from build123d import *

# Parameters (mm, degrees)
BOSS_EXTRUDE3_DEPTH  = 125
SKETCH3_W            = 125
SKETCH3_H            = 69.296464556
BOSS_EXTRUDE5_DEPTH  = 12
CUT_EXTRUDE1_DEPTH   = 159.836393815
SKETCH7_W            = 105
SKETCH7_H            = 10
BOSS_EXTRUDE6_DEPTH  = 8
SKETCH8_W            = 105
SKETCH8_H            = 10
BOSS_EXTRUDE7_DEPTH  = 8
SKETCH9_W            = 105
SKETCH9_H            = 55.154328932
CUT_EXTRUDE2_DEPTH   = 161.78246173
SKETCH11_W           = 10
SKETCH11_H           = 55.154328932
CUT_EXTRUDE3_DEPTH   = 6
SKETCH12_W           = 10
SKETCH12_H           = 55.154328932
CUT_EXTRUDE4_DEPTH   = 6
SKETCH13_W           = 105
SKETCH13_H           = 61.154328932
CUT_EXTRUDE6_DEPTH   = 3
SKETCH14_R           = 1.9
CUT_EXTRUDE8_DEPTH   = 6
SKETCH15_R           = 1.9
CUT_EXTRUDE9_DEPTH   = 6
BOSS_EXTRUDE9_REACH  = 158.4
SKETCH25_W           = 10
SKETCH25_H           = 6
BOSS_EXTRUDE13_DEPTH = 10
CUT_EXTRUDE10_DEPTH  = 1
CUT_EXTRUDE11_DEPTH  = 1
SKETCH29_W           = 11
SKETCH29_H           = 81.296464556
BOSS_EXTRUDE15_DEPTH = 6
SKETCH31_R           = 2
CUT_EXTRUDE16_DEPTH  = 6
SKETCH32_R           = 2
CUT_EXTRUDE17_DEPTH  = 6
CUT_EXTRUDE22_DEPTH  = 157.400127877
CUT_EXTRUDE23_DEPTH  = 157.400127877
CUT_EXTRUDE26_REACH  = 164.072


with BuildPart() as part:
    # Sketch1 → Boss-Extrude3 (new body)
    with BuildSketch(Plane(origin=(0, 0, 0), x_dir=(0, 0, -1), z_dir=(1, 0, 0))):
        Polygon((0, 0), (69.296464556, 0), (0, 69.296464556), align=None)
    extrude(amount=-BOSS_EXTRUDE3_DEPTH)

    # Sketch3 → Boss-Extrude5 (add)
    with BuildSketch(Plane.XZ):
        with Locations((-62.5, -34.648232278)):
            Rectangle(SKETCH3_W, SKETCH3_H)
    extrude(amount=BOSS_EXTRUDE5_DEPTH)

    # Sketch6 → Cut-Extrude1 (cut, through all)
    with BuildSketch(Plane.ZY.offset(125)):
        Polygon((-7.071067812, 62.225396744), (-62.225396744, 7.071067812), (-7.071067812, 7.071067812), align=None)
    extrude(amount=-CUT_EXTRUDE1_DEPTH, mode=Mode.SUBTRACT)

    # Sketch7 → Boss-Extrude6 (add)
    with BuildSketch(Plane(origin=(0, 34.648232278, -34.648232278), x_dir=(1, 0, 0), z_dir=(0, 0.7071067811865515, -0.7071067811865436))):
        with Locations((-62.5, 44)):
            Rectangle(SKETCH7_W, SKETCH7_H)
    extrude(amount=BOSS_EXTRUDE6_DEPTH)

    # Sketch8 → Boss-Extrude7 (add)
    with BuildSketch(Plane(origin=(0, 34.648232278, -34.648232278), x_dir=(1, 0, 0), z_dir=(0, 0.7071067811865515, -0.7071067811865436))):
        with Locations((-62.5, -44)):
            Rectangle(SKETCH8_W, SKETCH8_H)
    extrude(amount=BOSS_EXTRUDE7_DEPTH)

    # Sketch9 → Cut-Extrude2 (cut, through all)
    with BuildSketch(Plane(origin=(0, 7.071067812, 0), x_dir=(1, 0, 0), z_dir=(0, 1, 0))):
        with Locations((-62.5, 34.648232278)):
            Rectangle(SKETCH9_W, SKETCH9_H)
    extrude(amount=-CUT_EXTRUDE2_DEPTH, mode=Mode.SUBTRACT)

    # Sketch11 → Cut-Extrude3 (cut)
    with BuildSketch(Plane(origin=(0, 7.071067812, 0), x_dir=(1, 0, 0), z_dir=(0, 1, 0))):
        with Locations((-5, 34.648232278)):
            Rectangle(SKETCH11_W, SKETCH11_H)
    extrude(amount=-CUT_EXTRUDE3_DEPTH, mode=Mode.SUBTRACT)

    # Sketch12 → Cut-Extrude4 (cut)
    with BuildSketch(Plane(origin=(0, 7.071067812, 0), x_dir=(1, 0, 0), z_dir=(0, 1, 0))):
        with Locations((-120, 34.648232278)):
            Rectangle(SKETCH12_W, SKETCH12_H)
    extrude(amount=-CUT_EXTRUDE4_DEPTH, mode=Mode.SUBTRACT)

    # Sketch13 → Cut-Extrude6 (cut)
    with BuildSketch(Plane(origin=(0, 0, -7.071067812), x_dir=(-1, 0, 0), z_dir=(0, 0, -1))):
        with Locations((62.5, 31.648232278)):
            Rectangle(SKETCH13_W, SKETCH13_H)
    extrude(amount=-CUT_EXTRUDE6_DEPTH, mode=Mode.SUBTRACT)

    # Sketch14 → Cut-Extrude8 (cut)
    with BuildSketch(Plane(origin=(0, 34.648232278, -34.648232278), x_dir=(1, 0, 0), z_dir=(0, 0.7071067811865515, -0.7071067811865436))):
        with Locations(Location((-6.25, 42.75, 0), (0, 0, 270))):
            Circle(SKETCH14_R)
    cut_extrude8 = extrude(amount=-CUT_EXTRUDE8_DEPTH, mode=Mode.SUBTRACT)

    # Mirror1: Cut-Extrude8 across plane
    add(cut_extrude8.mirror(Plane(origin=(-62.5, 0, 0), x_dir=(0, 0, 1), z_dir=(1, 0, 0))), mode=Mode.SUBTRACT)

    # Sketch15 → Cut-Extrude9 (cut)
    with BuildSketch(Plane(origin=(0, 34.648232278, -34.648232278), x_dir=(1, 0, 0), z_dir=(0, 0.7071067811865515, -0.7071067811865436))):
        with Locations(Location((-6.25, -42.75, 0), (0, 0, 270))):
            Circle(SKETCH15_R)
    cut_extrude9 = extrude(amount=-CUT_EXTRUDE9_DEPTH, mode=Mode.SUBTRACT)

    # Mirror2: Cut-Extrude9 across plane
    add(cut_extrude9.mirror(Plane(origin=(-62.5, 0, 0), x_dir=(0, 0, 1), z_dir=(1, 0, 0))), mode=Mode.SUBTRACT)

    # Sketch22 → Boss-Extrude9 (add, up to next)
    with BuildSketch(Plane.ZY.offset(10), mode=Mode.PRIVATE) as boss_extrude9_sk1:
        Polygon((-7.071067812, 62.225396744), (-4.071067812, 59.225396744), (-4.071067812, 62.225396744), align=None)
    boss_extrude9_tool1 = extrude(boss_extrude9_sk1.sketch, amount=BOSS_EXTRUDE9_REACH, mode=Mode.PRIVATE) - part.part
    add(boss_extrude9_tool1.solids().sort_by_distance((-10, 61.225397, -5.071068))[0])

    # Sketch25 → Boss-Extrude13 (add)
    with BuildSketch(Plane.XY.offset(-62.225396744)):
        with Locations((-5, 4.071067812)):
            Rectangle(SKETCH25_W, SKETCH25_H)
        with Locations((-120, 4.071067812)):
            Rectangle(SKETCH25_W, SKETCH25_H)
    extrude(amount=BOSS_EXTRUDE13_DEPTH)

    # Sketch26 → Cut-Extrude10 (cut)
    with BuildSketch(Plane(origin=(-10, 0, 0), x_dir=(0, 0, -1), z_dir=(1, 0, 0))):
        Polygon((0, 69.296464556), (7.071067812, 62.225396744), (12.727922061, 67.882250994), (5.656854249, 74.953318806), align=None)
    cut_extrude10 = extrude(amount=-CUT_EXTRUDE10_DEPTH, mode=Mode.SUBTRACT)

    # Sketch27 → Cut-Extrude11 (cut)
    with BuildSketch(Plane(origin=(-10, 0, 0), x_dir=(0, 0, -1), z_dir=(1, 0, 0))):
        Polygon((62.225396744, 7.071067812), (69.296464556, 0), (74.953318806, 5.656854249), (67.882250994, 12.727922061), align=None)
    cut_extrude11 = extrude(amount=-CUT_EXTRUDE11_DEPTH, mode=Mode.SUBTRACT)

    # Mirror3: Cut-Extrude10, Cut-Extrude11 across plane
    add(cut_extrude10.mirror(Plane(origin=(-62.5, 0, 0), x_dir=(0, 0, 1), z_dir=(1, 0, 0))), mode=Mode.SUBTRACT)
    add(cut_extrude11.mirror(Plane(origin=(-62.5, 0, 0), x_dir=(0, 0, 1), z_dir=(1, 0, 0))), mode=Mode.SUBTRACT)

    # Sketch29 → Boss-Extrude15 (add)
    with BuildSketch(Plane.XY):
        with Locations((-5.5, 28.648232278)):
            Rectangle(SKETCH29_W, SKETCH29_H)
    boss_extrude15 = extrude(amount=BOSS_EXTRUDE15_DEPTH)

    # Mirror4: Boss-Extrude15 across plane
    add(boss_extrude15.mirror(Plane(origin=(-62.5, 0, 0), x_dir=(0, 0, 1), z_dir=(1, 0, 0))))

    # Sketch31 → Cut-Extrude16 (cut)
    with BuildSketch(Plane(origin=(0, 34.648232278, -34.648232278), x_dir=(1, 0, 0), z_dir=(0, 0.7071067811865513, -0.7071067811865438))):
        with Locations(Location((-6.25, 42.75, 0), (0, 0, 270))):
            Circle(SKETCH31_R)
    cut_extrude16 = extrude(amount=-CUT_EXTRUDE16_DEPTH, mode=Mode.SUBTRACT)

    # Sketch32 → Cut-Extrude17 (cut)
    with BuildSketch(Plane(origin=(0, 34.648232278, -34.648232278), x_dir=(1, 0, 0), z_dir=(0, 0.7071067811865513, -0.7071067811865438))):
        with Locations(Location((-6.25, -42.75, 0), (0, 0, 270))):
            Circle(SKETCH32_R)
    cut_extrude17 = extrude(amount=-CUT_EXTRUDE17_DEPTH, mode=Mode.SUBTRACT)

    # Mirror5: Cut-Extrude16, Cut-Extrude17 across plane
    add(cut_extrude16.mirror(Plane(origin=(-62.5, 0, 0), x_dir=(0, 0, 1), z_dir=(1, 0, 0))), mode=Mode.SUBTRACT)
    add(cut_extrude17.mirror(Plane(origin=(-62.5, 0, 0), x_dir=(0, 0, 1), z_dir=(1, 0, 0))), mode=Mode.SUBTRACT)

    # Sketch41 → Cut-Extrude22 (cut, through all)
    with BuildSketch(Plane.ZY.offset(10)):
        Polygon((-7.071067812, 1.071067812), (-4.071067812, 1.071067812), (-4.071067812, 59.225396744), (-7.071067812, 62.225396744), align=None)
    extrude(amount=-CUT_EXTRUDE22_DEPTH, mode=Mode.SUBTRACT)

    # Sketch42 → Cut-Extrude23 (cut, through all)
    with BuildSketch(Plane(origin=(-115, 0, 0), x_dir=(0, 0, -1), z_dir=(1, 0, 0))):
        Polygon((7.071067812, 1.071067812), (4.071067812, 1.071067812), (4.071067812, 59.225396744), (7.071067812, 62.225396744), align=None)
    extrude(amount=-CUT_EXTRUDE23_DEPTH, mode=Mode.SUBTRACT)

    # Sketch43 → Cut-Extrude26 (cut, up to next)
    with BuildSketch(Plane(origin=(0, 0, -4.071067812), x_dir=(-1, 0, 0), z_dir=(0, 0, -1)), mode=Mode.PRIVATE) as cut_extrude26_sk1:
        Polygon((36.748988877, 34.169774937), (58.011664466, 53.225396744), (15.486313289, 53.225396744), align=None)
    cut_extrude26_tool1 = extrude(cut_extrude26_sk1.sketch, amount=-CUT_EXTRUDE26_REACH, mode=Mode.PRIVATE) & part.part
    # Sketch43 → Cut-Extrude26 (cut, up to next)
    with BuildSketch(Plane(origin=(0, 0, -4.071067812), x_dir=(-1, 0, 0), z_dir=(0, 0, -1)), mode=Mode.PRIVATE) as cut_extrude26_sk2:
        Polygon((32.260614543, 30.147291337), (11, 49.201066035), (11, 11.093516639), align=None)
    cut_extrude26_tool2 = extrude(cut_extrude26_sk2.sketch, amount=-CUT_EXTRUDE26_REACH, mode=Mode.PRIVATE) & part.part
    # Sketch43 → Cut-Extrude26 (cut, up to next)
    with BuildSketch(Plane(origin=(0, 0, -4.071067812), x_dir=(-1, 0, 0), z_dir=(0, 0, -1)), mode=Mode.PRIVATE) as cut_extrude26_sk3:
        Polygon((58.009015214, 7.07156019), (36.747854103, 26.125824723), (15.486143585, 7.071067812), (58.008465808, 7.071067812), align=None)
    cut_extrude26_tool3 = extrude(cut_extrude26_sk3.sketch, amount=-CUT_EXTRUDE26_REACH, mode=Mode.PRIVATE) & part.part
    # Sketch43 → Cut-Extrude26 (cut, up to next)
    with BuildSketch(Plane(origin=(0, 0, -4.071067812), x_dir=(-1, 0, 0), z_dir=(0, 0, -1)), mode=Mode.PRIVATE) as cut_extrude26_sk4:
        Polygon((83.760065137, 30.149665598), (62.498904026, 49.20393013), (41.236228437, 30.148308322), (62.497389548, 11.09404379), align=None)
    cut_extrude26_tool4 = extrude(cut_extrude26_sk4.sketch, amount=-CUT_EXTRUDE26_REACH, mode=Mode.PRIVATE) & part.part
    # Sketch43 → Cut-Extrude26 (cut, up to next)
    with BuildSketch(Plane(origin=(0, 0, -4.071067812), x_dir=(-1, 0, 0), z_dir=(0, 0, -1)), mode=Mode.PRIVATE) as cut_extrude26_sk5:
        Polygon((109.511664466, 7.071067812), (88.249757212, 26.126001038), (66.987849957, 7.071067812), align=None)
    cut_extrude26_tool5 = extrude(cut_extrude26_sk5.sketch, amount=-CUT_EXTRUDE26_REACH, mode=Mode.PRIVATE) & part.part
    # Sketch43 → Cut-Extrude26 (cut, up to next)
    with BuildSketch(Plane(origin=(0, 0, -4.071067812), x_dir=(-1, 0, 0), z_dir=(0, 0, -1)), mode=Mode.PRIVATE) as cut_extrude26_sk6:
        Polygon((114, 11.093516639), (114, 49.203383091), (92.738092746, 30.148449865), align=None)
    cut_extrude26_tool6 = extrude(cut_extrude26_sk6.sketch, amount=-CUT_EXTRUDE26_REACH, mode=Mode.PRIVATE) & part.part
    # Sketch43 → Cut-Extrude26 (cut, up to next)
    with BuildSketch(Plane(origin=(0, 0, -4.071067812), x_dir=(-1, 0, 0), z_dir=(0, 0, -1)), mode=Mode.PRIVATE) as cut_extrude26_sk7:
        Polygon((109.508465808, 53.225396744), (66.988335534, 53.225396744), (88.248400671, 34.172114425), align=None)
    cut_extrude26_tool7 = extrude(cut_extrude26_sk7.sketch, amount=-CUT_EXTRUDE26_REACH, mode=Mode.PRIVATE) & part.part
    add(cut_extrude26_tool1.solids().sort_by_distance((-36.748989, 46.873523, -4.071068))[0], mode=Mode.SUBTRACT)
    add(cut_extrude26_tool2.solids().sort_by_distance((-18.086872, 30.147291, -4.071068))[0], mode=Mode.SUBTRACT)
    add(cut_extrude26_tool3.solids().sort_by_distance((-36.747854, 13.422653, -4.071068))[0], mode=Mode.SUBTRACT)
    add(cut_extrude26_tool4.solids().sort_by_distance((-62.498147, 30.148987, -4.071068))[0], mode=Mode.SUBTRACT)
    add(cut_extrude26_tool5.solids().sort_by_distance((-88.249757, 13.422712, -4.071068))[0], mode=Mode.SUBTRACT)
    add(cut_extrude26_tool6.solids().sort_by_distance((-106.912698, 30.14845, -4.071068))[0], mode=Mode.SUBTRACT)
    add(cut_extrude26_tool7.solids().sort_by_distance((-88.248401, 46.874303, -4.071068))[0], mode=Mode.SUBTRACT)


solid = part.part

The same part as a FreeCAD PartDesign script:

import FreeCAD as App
import Part
import Sketcher
Q = App.Units.Quantity


def add_polygon(sketch, points):
    """Adds a closed chain of lines whose ends are joined by coincident constraints."""
    first, n = sketch.GeometryCount, len(points)
    for a, b in zip(points, points[1:] + points[:1]):
        sketch.addGeometry(Part.LineSegment(App.Vector(*a, 0), App.Vector(*b, 0)), False)
    for i in range(n):
        sketch.addConstraint(Sketcher.Constraint("Coincident", first + i, 2, first + (i + 1) % n, 1))

doc = App.newDocument("Part")
body = doc.addObject("PartDesign::Body", "Body")

# Sketch on YZ plane
sketch1 = body.newObject("Sketcher::SketchObject", "Sketch")
sketch1.AttachmentSupport = (doc.getObject("YZ_Plane"), [""])
sketch1.MapMode = "FlatFace"
add_polygon(sketch1, [(0, 0), (0, -69.296465), (69.296465, 0)])  # lines 0-2
sketch1.addConstraint([
    Sketcher.Constraint("Vertical", 0),
    Sketcher.Constraint("Horizontal", 2),
    Sketcher.Constraint("Coincident", 2, 2, -1, 1),
    Sketcher.Constraint("Equal", 2, 0),
    Sketcher.Constraint("Distance", 1, Q("98 mm")),
])
pad1 = body.newObject("PartDesign::Pad", "Pad")
pad1.Profile = sketch1
pad1.Length = 125
pad1.Reversed = True

# Sketch on XZ plane
sketch2 = body.newObject("Sketcher::SketchObject", "Sketch001")
sketch2.AttachmentSupport = (doc.getObject("XZ_Plane"), [""])
sketch2.MapMode = "FlatFace"
add_polygon(sketch2, [(-125, 0), (-125, -69.296465), (0, -69.296465), (0, 0)])  # lines 0-3
sketch2.addConstraint([
    Sketcher.Constraint("Vertical", 0),
    Sketcher.Constraint("Horizontal", 1),
    Sketcher.Constraint("Vertical", 2),
    Sketcher.Constraint("Horizontal", 3),
    Sketcher.Constraint("Coincident", 2, 2, -1, 1),
    Sketcher.Constraint("DistanceX", 1, 1, 1, 2, Q("125 mm")),
    Sketcher.Constraint("DistanceY", 0, 2, 0, 1, Q("69.296465 mm")),
])
pad2 = body.newObject("PartDesign::Pad", "Pad001")
pad2.Profile = sketch2
pad2.Length = 12

# Sketch on YZ plane
sketch3 = body.newObject("Sketcher::SketchObject", "Sketch002")
sketch3.AttachmentSupport = (doc.getObject("YZ_Plane"), [""])
sketch3.MapMode = "FlatFace"
sketch3.AttachmentOffset = App.Placement(App.Vector(0, 0, -125), App.Rotation())
add_polygon(sketch3, [(62.225397, -7.071068), (7.071068, -62.225397), (7.071068, -7.071068)])  # lines 0-2
sketch3.addConstraint([
    Sketcher.Constraint("Vertical", 1),
    Sketcher.Constraint("Horizontal", 2),
    Sketcher.Constraint("Equal", 2, 1),
    Sketcher.Constraint("Distance", 0, Q("78 mm")),
    Sketcher.Constraint("DistanceX", -1, 1, 0, 2, Q("7.071068 mm")),
    Sketcher.Constraint("DistanceY", 0, 2, -1, 1, Q("62.225397 mm")),
])
pocket1 = body.newObject("PartDesign::Pocket", "Pocket")
pocket1.Profile = sketch3
pocket1.Type = "ThroughAll"
pocket1.Reversed = True

# Sketch on an angled plane
sketch4 = body.newObject("Sketcher::SketchObject", "Sketch003")
sketch4.Placement = App.Placement(App.Vector(0, 34.648232, -34.648232), App.Rotation(App.Vector(1, 0, 0), App.Vector(0, -0.707106781, -0.707106781), App.Vector(0, 0.707106781, -0.707106781), "ZXY"))
add_polygon(sketch4, [(-115, 49), (-115, 39), (-10, 39), (-10, 49)])  # lines 0-3
sketch4.addConstraint([
    Sketcher.Constraint("Vertical", 0),
    Sketcher.Constraint("Horizontal", 1),
    Sketcher.Constraint("Vertical", 2),
    Sketcher.Constraint("Horizontal", 3),
    Sketcher.Constraint("DistanceX", 1, 1, 1, 2, Q("105 mm")),
    Sketcher.Constraint("DistanceY", 0, 2, 0, 1, Q("10 mm")),
    Sketcher.Constraint("DistanceX", 0, 2, -1, 1, Q("115 mm")),
    Sketcher.Constraint("DistanceY", -1, 1, 0, 2, Q("39 mm")),
])
pad3 = body.newObject("PartDesign::Pad", "Pad002")
pad3.Profile = sketch4
pad3.Length = 8

# Sketch on an angled plane
sketch5 = body.newObject("Sketcher::SketchObject", "Sketch004")
sketch5.Placement = App.Placement(App.Vector(0, 34.648232, -34.648232), App.Rotation(App.Vector(1, 0, 0), App.Vector(0, -0.707106781, -0.707106781), App.Vector(0, 0.707106781, -0.707106781), "ZXY"))
add_polygon(sketch5, [(-115, -39), (-115, -49), (-10, -49), (-10, -39)])  # lines 0-3
sketch5.addConstraint([
    Sketcher.Constraint("Vertical", 0),
    Sketcher.Constraint("Horizontal", 1),
    Sketcher.Constraint("Vertical", 2),
    Sketcher.Constraint("Horizontal", 3),
    Sketcher.Constraint("DistanceX", 1, 1, 1, 2, Q("105 mm")),
    Sketcher.Constraint("DistanceY", 0, 2, 0, 1, Q("10 mm")),
    Sketcher.Constraint("DistanceX", 0, 2, -1, 1, Q("115 mm")),
    Sketcher.Constraint("DistanceY", 0, 2, -1, 1, Q("49 mm")),
])
pad4 = body.newObject("PartDesign::Pad", "Pad003")
pad4.Profile = sketch5
pad4.Length = 8

# Sketch on XZ plane
sketch6 = body.newObject("Sketcher::SketchObject", "Sketch005")
sketch6.AttachmentSupport = (doc.getObject("XZ_Plane"), [""])
sketch6.MapMode = "FlatFace"
sketch6.AttachmentOffset = App.Placement(App.Vector(0, 0, -7.071068), App.Rotation())
add_polygon(sketch6, [(-115, -62.225397), (-115, -7.071068), (-10, -7.071068), (-10, -62.225397)])  # lines 0-3
sketch6.addConstraint([
    Sketcher.Constraint("Vertical", 0),
    Sketcher.Constraint("Horizontal", 1),
    Sketcher.Constraint("Vertical", 2),
    Sketcher.Constraint("Horizontal", 3),
    Sketcher.Constraint("DistanceX", 1, 1, 1, 2, Q("105 mm")),
    Sketcher.Constraint("DistanceX", 0, 2, -1, 1, Q("115 mm")),
    Sketcher.Constraint("DistanceY", 0, 1, 0, 2, Q("55.154329 mm")),
    Sketcher.Constraint("DistanceY", 0, 2, -1, 1, Q("7.071068 mm")),
])
pocket2 = body.newObject("PartDesign::Pocket", "Pocket001")
pocket2.Profile = sketch6
pocket2.Type = "ThroughAll"
pocket2.Reversed = True

# Sketch on XZ plane
sketch7 = body.newObject("Sketcher::SketchObject", "Sketch006")
sketch7.AttachmentSupport = (doc.getObject("XZ_Plane"), [""])
sketch7.MapMode = "FlatFace"
sketch7.AttachmentOffset = App.Placement(App.Vector(0, 0, -7.071068), App.Rotation())
add_polygon(sketch7, [(-10, -62.225397), (-10, -7.071068), (0, -7.071068), (0, -62.225397)])  # lines 0-3
sketch7.addConstraint([
    Sketcher.Constraint("Vertical", 0),
    Sketcher.Constraint("Horizontal", 1),
    Sketcher.Constraint("Vertical", 2),
    Sketcher.Constraint("Horizontal", 3),
    Sketcher.Constraint("PointOnObject", 1, 2, -2),
    Sketcher.Constraint("DistanceX", 1, 1, 1, 2, Q("10 mm")),
    Sketcher.Constraint("DistanceY", 0, 1, 0, 2, Q("55.154329 mm")),
    Sketcher.Constraint("DistanceY", 0, 2, -1, 1, Q("7.071068 mm")),
])
pocket3 = body.newObject("PartDesign::Pocket", "Pocket002")
pocket3.Profile = sketch7
pocket3.Length = 6
pocket3.Reversed = True

# Sketch on XZ plane
sketch8 = body.newObject("Sketcher::SketchObject", "Sketch007")
sketch8.AttachmentSupport = (doc.getObject("XZ_Plane"), [""])
sketch8.MapMode = "FlatFace"
sketch8.AttachmentOffset = App.Placement(App.Vector(0, 0, -7.071068), App.Rotation())
add_polygon(sketch8, [(-125, -62.225397), (-125, -7.071068), (-115, -7.071068), (-115, -62.225397)])  # lines 0-3
sketch8.addConstraint([
    Sketcher.Constraint("Vertical", 0),
    Sketcher.Constraint("Horizontal", 1),
    Sketcher.Constraint("Vertical", 2),
    Sketcher.Constraint("Horizontal", 3),
    Sketcher.Constraint("DistanceX", 1, 1, 1, 2, Q("10 mm")),
    Sketcher.Constraint("DistanceX", 0, 2, -1, 1, Q("125 mm")),
    Sketcher.Constraint("DistanceY", 0, 1, 0, 2, Q("55.154329 mm")),
    Sketcher.Constraint("DistanceY", 0, 2, -1, 1, Q("7.071068 mm")),
])
pocket4 = body.newObject("PartDesign::Pocket", "Pocket003")
pocket4.Profile = sketch8
pocket4.Length = 6
pocket4.Reversed = True

# Sketch on XY plane
sketch9 = body.newObject("Sketcher::SketchObject", "Sketch008")
sketch9.AttachmentSupport = (doc.getObject("XY_Plane"), [""])
sketch9.MapMode = "FlatFace"
sketch9.AttachmentOffset = App.Placement(App.Vector(0, 0, -7.071068), App.Rotation())
add_polygon(sketch9, [(-10, 62.225397), (-10, 1.071068), (-115, 1.071068), (-115, 62.225397)])  # lines 0-3
sketch9.addConstraint([
    Sketcher.Constraint("Vertical", 0),
    Sketcher.Constraint("Horizontal", 1),
    Sketcher.Constraint("Vertical", 2),
    Sketcher.Constraint("Horizontal", 3),
    Sketcher.Constraint("DistanceX", 1, 2, 1, 1, Q("105 mm")),
    Sketcher.Constraint("DistanceX", 0, 2, -1, 1, Q("10 mm")),
    Sketcher.Constraint("DistanceY", 0, 2, 0, 1, Q("61.154329 mm")),
    Sketcher.Constraint("DistanceY", -1, 1, 0, 2, Q("1.071068 mm")),
])
pocket5 = body.newObject("PartDesign::Pocket", "Pocket004")
pocket5.Profile = sketch9
pocket5.Length = 3
pocket5.Reversed = True

# Sketch on an angled plane
sketch10 = body.newObject("Sketcher::SketchObject", "Sketch009")
sketch10.Placement = App.Placement(App.Vector(0, 34.648232, -34.648232), App.Rotation(App.Vector(1, 0, 0), App.Vector(0, -0.707106781, -0.707106781), App.Vector(0, 0.707106781, -0.707106781), "ZXY"))
sketch10.addGeometry(Part.Circle(App.Vector(-6.25, 42.75, 0), App.Vector(0, 0, 1), 1.9), False)
sketch10.addConstraint([
    Sketcher.Constraint("Diameter", 0, Q("3.8 mm")),
    Sketcher.Constraint("DistanceX", 0, 3, -1, 1, Q("6.25 mm")),
    Sketcher.Constraint("DistanceY", -1, 1, 0, 3, Q("42.75 mm")),
])
pocket6 = body.newObject("PartDesign::Pocket", "Pocket005")
pocket6.Profile = sketch10
pocket6.Length = 6
doc.recompute()

datumplane = body.newObject("PartDesign::Plane", "DatumPlane")
datumplane.AttachmentSupport = (doc.getObject("YZ_Plane"), [""])
datumplane.MapMode = "FlatFace"
datumplane.AttachmentOffset = App.Placement(App.Vector(0, 0, -62.5), App.Rotation())
mirrored = body.newObject("PartDesign::Mirrored", "Mirrored")
mirrored.Originals = [pocket6]
mirrored.MirrorPlane = (datumplane, [""])
body.Tip = mirrored

# Sketch on an angled plane
sketch11 = body.newObject("Sketcher::SketchObject", "Sketch010")
sketch11.Placement = App.Placement(App.Vector(0, 34.648232, -34.648232), App.Rotation(App.Vector(1, 0, 0), App.Vector(0, -0.707106781, -0.707106781), App.Vector(0, 0.707106781, -0.707106781), "ZXY"))
sketch11.addGeometry(Part.Circle(App.Vector(-6.25, -42.75, 0), App.Vector(0, 0, 1), 1.9), False)
sketch11.addConstraint([
    Sketcher.Constraint("Diameter", 0, Q("3.8 mm")),
    Sketcher.Constraint("DistanceX", 0, 3, -1, 1, Q("6.25 mm")),
    Sketcher.Constraint("DistanceY", 0, 3, -1, 1, Q("42.75 mm")),
])
pocket7 = body.newObject("PartDesign::Pocket", "Pocket006")
pocket7.Profile = sketch11
pocket7.Length = 6
doc.recompute()

datumplane2 = body.newObject("PartDesign::Plane", "DatumPlane001")
datumplane2.AttachmentSupport = (doc.getObject("YZ_Plane"), [""])
datumplane2.MapMode = "FlatFace"
datumplane2.AttachmentOffset = App.Placement(App.Vector(0, 0, -62.5), App.Rotation())
mirrored2 = body.newObject("PartDesign::Mirrored", "Mirrored001")
mirrored2.Originals = [pocket7]
mirrored2.MirrorPlane = (datumplane2, [""])
body.Tip = mirrored2

# Sketch on YZ plane
sketch12 = body.newObject("Sketcher::SketchObject", "Sketch011")
sketch12.AttachmentSupport = (doc.getObject("YZ_Plane"), [""])
sketch12.MapMode = "FlatFace"
sketch12.AttachmentOffset = App.Placement(App.Vector(0, 0, -10), App.Rotation())
add_polygon(sketch12, [(62.225397, -7.071068), (59.225397, -4.071068), (62.225397, -4.071068)])  # lines 0-2
sketch12.addConstraint([
    Sketcher.Constraint("Horizontal", 1),
    Sketcher.Constraint("Vertical", 2),
    Sketcher.Constraint("Equal", 1, 2),
    Sketcher.Constraint("DistanceX", 1, 1, 1, 2, Q("3 mm")),
    Sketcher.Constraint("DistanceX", -1, 1, 0, 2, Q("59.225397 mm")),
    Sketcher.Constraint("DistanceY", 0, 2, -1, 1, Q("4.071068 mm")),
])
pad5 = body.newObject("PartDesign::Pad", "Pad004")
pad5.Profile = sketch12
pad5.Type = "UpToFirst"
pad5.Reversed = True

# Sketch on XY plane
sketch13 = body.newObject("Sketcher::SketchObject", "Sketch012")
sketch13.AttachmentSupport = (doc.getObject("XY_Plane"), [""])
sketch13.MapMode = "FlatFace"
sketch13.AttachmentOffset = App.Placement(App.Vector(0, 0, -62.225397), App.Rotation())
add_polygon(sketch13, [(-10, 7.071068), (-10, 1.071068), (0, 1.071068), (0, 7.071068)])  # lines 0-3
add_polygon(sketch13, [(-125, 7.071068), (-125, 1.071068), (-115, 1.071068), (-115, 7.071068)])  # lines 4-7
sketch13.addConstraint([
    Sketcher.Constraint("Vertical", 0),
    Sketcher.Constraint("Horizontal", 1),
    Sketcher.Constraint("Vertical", 2),
    Sketcher.Constraint("Horizontal", 3),
    Sketcher.Constraint("Vertical", 4),
    Sketcher.Constraint("Horizontal", 5),
    Sketcher.Constraint("Vertical", 6),
    Sketcher.Constraint("Horizontal", 7),
    Sketcher.Constraint("PointOnObject", 1, 2, -2),
    Sketcher.Constraint("Horizontal", 1, 2, 4, 2),
    Sketcher.Constraint("Horizontal", 3, 2, 6, 2),
    Sketcher.Constraint("Equal", 3, 5),
    Sketcher.Constraint("DistanceX", 1, 1, 1, 2, Q("10 mm")),
    Sketcher.Constraint("DistanceY", 0, 2, 0, 1, Q("6 mm")),
    Sketcher.Constraint("DistanceX", 4, 2, -1, 1, Q("125 mm")),
    Sketcher.Constraint("DistanceY", -1, 1, 0, 2, Q("1.071068 mm")),
])
pad6 = body.newObject("PartDesign::Pad", "Pad005")
pad6.Profile = sketch13
pad6.Length = 10

# Sketch on YZ plane
sketch14 = body.newObject("Sketcher::SketchObject", "Sketch013")
sketch14.AttachmentSupport = (doc.getObject("YZ_Plane"), [""])
sketch14.MapMode = "FlatFace"
sketch14.AttachmentOffset = App.Placement(App.Vector(0, 0, -10), App.Rotation())
add_polygon(sketch14, [(69.296465, 0), (62.225397, -7.071068), (67.882251, -12.727922), (74.953319, -5.656854)])  # lines 0-3
sketch14.addConstraint([
    Sketcher.Constraint("PointOnObject", 3, 2, -1),
    Sketcher.Constraint("Perpendicular", 0, 1),
    Sketcher.Constraint("Perpendicular", 1, 2),
    Sketcher.Constraint("Perpendicular", 2, 3),
    Sketcher.Constraint("Angle", 0, Q("-135 deg")),
    Sketcher.Constraint("Distance", 0, Q("10 mm")),
    Sketcher.Constraint("Distance", 1, Q("8 mm")),
    Sketcher.Constraint("DistanceX", -1, 1, 1, 2, Q("67.882251 mm")),
])
pocket8 = body.newObject("PartDesign::Pocket", "Pocket007")
pocket8.Profile = sketch14
pocket8.Length = 1

# Sketch on YZ plane
sketch15 = body.newObject("Sketcher::SketchObject", "Sketch014")
sketch15.AttachmentSupport = (doc.getObject("YZ_Plane"), [""])
sketch15.MapMode = "FlatFace"
sketch15.AttachmentOffset = App.Placement(App.Vector(0, 0, -10), App.Rotation())
add_polygon(sketch15, [(7.071068, -62.225397), (0, -69.296465), (5.656854, -74.953319), (12.727922, -67.882251)])  # lines 0-3
sketch15.addConstraint([
    Sketcher.Constraint("PointOnObject", 0, 2, -2),
    Sketcher.Constraint("Perpendicular", 0, 1),
    Sketcher.Constraint("Perpendicular", 1, 2),
    Sketcher.Constraint("Perpendicular", 2, 3),
    Sketcher.Constraint("Angle", 0, Q("-135 deg")),
    Sketcher.Constraint("Distance", 0, Q("10 mm")),
    Sketcher.Constraint("Distance", 1, Q("8 mm")),
    Sketcher.Constraint("DistanceY", 1, 2, -1, 1, Q("74.953319 mm")),
])
pocket9 = body.newObject("PartDesign::Pocket", "Pocket008")
pocket9.Profile = sketch15
pocket9.Length = 1
doc.recompute()

datumplane3 = body.newObject("PartDesign::Plane", "DatumPlane002")
datumplane3.AttachmentSupport = (doc.getObject("YZ_Plane"), [""])
datumplane3.MapMode = "FlatFace"
datumplane3.AttachmentOffset = App.Placement(App.Vector(0, 0, -62.5), App.Rotation())
mirrored3 = body.newObject("PartDesign::Mirrored", "Mirrored002")
mirrored3.Originals = [pocket8, pocket9]
mirrored3.MirrorPlane = (datumplane3, [""])
body.Tip = mirrored3

# Sketch on XY plane
sketch16 = body.newObject("Sketcher::SketchObject", "Sketch015")
sketch16.AttachmentSupport = (doc.getObject("XY_Plane"), [""])
sketch16.MapMode = "FlatFace"
add_polygon(sketch16, [(-11, 69.296465), (-11, -12), (0, -12), (0, 69.296465)])  # lines 0-3
sketch16.addConstraint([
    Sketcher.Constraint("Vertical", 0),
    Sketcher.Constraint("Horizontal", 1),
    Sketcher.Constraint("Vertical", 2),
    Sketcher.Constraint("Horizontal", 3),
    Sketcher.Constraint("PointOnObject", 1, 2, -2),
    Sketcher.Constraint("DistanceX", 1, 1, 1, 2, Q("11 mm")),
    Sketcher.Constraint("DistanceY", 0, 2, -1, 1, Q("12 mm")),
    Sketcher.Constraint("DistanceY", 0, 2, 0, 1, Q("81.296465 mm")),
])
pad7 = body.newObject("PartDesign::Pad", "Pad006")
pad7.Profile = sketch16
pad7.Length = 6
doc.recompute()

datumplane4 = body.newObject("PartDesign::Plane", "DatumPlane003")
datumplane4.AttachmentSupport = (doc.getObject("YZ_Plane"), [""])
datumplane4.MapMode = "FlatFace"
datumplane4.AttachmentOffset = App.Placement(App.Vector(0, 0, -62.5), App.Rotation())
mirrored4 = body.newObject("PartDesign::Mirrored", "Mirrored003")
mirrored4.Originals = [pad7]
mirrored4.MirrorPlane = (datumplane4, [""])
body.Tip = mirrored4

# Sketch on an angled plane
sketch17 = body.newObject("Sketcher::SketchObject", "Sketch016")
sketch17.Placement = App.Placement(App.Vector(0, 34.648232, -34.648232), App.Rotation(App.Vector(1, 0, 0), App.Vector(0, -0.707106781, -0.707106781), App.Vector(0, 0.707106781, -0.707106781), "ZXY"))
sketch17.addGeometry(Part.Circle(App.Vector(-6.25, 42.75, 0), App.Vector(0, 0, 1), 2), False)
sketch17.addConstraint([
    Sketcher.Constraint("Diameter", 0, Q("4 mm")),
    Sketcher.Constraint("DistanceX", 0, 3, -1, 1, Q("6.25 mm")),
    Sketcher.Constraint("DistanceY", -1, 1, 0, 3, Q("42.75 mm")),
])
pocket10 = body.newObject("PartDesign::Pocket", "Pocket009")
pocket10.Profile = sketch17
pocket10.Length = 6

# Sketch on an angled plane
sketch18 = body.newObject("Sketcher::SketchObject", "Sketch017")
sketch18.Placement = App.Placement(App.Vector(0, 34.648232, -34.648232), App.Rotation(App.Vector(1, 0, 0), App.Vector(0, -0.707106781, -0.707106781), App.Vector(0, 0.707106781, -0.707106781), "ZXY"))
sketch18.addGeometry(Part.Circle(App.Vector(-6.25, -42.75, 0), App.Vector(0, 0, 1), 2), False)
sketch18.addConstraint([
    Sketcher.Constraint("Diameter", 0, Q("4 mm")),
    Sketcher.Constraint("DistanceX", 0, 3, -1, 1, Q("6.25 mm")),
    Sketcher.Constraint("DistanceY", 0, 3, -1, 1, Q("42.75 mm")),
])
pocket11 = body.newObject("PartDesign::Pocket", "Pocket010")
pocket11.Profile = sketch18
pocket11.Length = 6
doc.recompute()

datumplane5 = body.newObject("PartDesign::Plane", "DatumPlane004")
datumplane5.AttachmentSupport = (doc.getObject("YZ_Plane"), [""])
datumplane5.MapMode = "FlatFace"
datumplane5.AttachmentOffset = App.Placement(App.Vector(0, 0, -62.5), App.Rotation())
mirrored5 = body.newObject("PartDesign::Mirrored", "Mirrored004")
mirrored5.Originals = [pocket10, pocket11]
mirrored5.MirrorPlane = (datumplane5, [""])
body.Tip = mirrored5

# Sketch on YZ plane
sketch19 = body.newObject("Sketcher::SketchObject", "Sketch018")
sketch19.AttachmentSupport = (doc.getObject("YZ_Plane"), [""])
sketch19.MapMode = "FlatFace"
sketch19.AttachmentOffset = App.Placement(App.Vector(0, 0, -10), App.Rotation())
add_polygon(sketch19, [(1.071068, -7.071068), (1.071068, -4.071068), (59.225397, -4.071068), (62.225397, -7.071068)])  # lines 0-3
sketch19.addConstraint([
    Sketcher.Constraint("Vertical", 0),
    Sketcher.Constraint("Horizontal", 1),
    Sketcher.Constraint("Horizontal", 3),
    Sketcher.Constraint("DistanceY", 0, 1, 0, 2, Q("3 mm")),
    Sketcher.Constraint("Angle", 2, Q("-45 deg")),
    Sketcher.Constraint("DistanceX", 1, 1, 1, 2, Q("58.154329 mm")),
    Sketcher.Constraint("DistanceX", -1, 1, 0, 2, Q("1.071068 mm")),
    Sketcher.Constraint("DistanceY", 0, 2, -1, 1, Q("4.071068 mm")),
])
pocket12 = body.newObject("PartDesign::Pocket", "Pocket011")
pocket12.Profile = sketch19
pocket12.Type = "ThroughAll"
pocket12.Reversed = True

# Sketch on YZ plane
sketch20 = body.newObject("Sketcher::SketchObject", "Sketch019")
sketch20.AttachmentSupport = (doc.getObject("YZ_Plane"), [""])
sketch20.MapMode = "FlatFace"
sketch20.AttachmentOffset = App.Placement(App.Vector(0, 0, -115), App.Rotation())
add_polygon(sketch20, [(1.071068, -4.071068), (1.071068, -7.071068), (62.225397, -7.071068), (59.225397, -4.071068)])  # lines 0-3
sketch20.addConstraint([
    Sketcher.Constraint("Vertical", 0),
    Sketcher.Constraint("Horizontal", 1),
    Sketcher.Constraint("Horizontal", 3),
    Sketcher.Constraint("DistanceY", 0, 2, 0, 1, Q("3 mm")),
    Sketcher.Constraint("Angle", 2, Q("135 deg")),
    Sketcher.Constraint("DistanceX", 1, 1, 1, 2, Q("61.154329 mm")),
    Sketcher.Constraint("DistanceX", -1, 1, 0, 2, Q("1.071068 mm")),
    Sketcher.Constraint("DistanceY", 0, 2, -1, 1, Q("7.071068 mm")),
])
pocket13 = body.newObject("PartDesign::Pocket", "Pocket012")
pocket13.Profile = sketch20
pocket13.Type = "ThroughAll"

# Sketch on XY plane
sketch21 = body.newObject("Sketcher::SketchObject", "Sketch020")
sketch21.AttachmentSupport = (doc.getObject("XY_Plane"), [""])
sketch21.MapMode = "FlatFace"
sketch21.AttachmentOffset = App.Placement(App.Vector(0, 0, -4.071068), App.Rotation())
add_polygon(sketch21, [(-36.748989, 34.169775), (-58.011664, 53.225397), (-15.486313, 53.225397)])  # lines 0-2
sketch21.addConstraint([
    Sketcher.Constraint("Horizontal", 1),
    Sketcher.Constraint("Equal", 0, 2),
    Sketcher.Constraint("DistanceX", 1, 1, 1, 2, Q("42.525351 mm")),
    Sketcher.Constraint("DistanceX", 2, 2, -1, 1, Q("36.748989 mm")),
    Sketcher.Constraint("DistanceY", 2, 2, 1, 2, Q("19.055622 mm")),
    Sketcher.Constraint("DistanceY", -1, 1, 0, 2, Q("53.225397 mm")),
])
pocket14 = body.newObject("PartDesign::Pocket", "Pocket013")
pocket14.Profile = sketch21
pocket14.Type = "UpToFirst"
pocket14.Reversed = True

# Sketch on XY plane
sketch22 = body.newObject("Sketcher::SketchObject", "Sketch021")
sketch22.AttachmentSupport = (doc.getObject("XY_Plane"), [""])
sketch22.MapMode = "FlatFace"
sketch22.AttachmentOffset = App.Placement(App.Vector(0, 0, -4.071068), App.Rotation())
add_polygon(sketch22, [(-32.260615, 30.147291), (-11, 49.201066), (-11, 11.093517)])  # lines 0-2
sketch22.addConstraint([
    Sketcher.Constraint("Vertical", 1),
    Sketcher.Constraint("Equal", 0, 2),
    Sketcher.Constraint("DistanceX", 0, 2, -1, 1, Q("11 mm")),
    Sketcher.Constraint("DistanceY", 1, 2, 1, 1, Q("38.107549 mm")),
    Sketcher.Constraint("DistanceY", -1, 1, 2, 2, Q("30.147291 mm")),
    Sketcher.Constraint("Distance", 0, Q("28.549257 mm")),
])
pocket15 = body.newObject("PartDesign::Pocket", "Pocket014")
pocket15.Profile = sketch22
pocket15.Type = "UpToFirst"
pocket15.Reversed = True

# Sketch on XY plane
sketch23 = body.newObject("Sketcher::SketchObject", "Sketch022")
sketch23.AttachmentSupport = (doc.getObject("XY_Plane"), [""])
sketch23.MapMode = "FlatFace"
sketch23.AttachmentOffset = App.Placement(App.Vector(0, 0, -4.071068), App.Rotation())
add_polygon(sketch23, [(-58.009015, 7.07156), (-36.747854, 26.125825), (-15.486144, 7.071068), (-58.008466, 7.071068)])  # lines 0-3
sketch23.addConstraint([
    Sketcher.Constraint("Horizontal", 2),
    Sketcher.Constraint("Parallel", 1, 3),
    Sketcher.Constraint("Distance", 0, Q("28.549991 mm")),
    Sketcher.Constraint("Distance", 1, Q("28.550728 mm")),
    Sketcher.Constraint("DistanceX", 2, 2, 2, 1, Q("42.522322 mm")),
    Sketcher.Constraint("DistanceY", -1, 1, 3, 2, Q("7.07156 mm")),
    Sketcher.Constraint("DistanceX", 0, 2, 1, 2, Q("21.261711 mm")),
    Sketcher.Constraint("DistanceX", 0, 2, -1, 1, Q("36.747854 mm")),
])
pocket16 = body.newObject("PartDesign::Pocket", "Pocket015")
pocket16.Profile = sketch23
pocket16.Type = "UpToFirst"
pocket16.Reversed = True

# Sketch on XY plane
sketch24 = body.newObject("Sketcher::SketchObject", "Sketch023")
sketch24.AttachmentSupport = (doc.getObject("XY_Plane"), [""])
sketch24.MapMode = "FlatFace"
sketch24.AttachmentOffset = App.Placement(App.Vector(0, 0, -4.071068), App.Rotation())
add_polygon(sketch24, [(-83.760065, 30.149666), (-62.498904, 49.20393), (-41.236228, 30.148308), (-62.49739, 11.094044)])  # lines 0-3
sketch24.addConstraint([
    Sketcher.Constraint("Parallel", 0, 2),
    Sketcher.Constraint("Parallel", 1, 3),
    Sketcher.Constraint("Distance", 0, Q("28.549991 mm")),
    Sketcher.Constraint("DistanceY", -1, 1, 0, 2, Q("49.20393 mm")),
    Sketcher.Constraint("DistanceX", 1, 2, -1, 1, Q("41.236228 mm")),
    Sketcher.Constraint("DistanceY", -1, 1, 1, 2, Q("30.148308 mm")),
    Sketcher.Constraint("DistanceX", 2, 2, -1, 1, Q("62.49739 mm")),
    Sketcher.Constraint("Distance", 1, Q("28.552024 mm")),
])
pocket17 = body.newObject("PartDesign::Pocket", "Pocket016")
pocket17.Profile = sketch24
pocket17.Type = "UpToFirst"
pocket17.Reversed = True

# Sketch on XY plane
sketch25 = body.newObject("Sketcher::SketchObject", "Sketch024")
sketch25.AttachmentSupport = (doc.getObject("XY_Plane"), [""])
sketch25.MapMode = "FlatFace"
sketch25.AttachmentOffset = App.Placement(App.Vector(0, 0, -4.071068), App.Rotation())
add_polygon(sketch25, [(-109.511664, 7.071068), (-88.249757, 26.126001), (-66.98785, 7.071068)])  # lines 0-2
sketch25.addConstraint([
    Sketcher.Constraint("Horizontal", 2),
    Sketcher.Constraint("Equal", 0, 1),
    Sketcher.Constraint("DistanceY", -1, 1, 0, 2, Q("26.126001 mm")),
    Sketcher.Constraint("DistanceX", 2, 2, 2, 1, Q("42.523815 mm")),
    Sketcher.Constraint("DistanceX", 1, 2, -1, 1, Q("66.98785 mm")),
    Sketcher.Constraint("Distance", 0, Q("28.550993 mm")),
])
pocket18 = body.newObject("PartDesign::Pocket", "Pocket017")
pocket18.Profile = sketch25
pocket18.Type = "UpToFirst"
pocket18.Reversed = True

# Sketch on XY plane
sketch26 = body.newObject("Sketcher::SketchObject", "Sketch025")
sketch26.AttachmentSupport = (doc.getObject("XY_Plane"), [""])
sketch26.MapMode = "FlatFace"
sketch26.AttachmentOffset = App.Placement(App.Vector(0, 0, -4.071068), App.Rotation())
add_polygon(sketch26, [(-114, 11.093517), (-114, 49.203383), (-92.738093, 30.14845)])  # lines 0-2
sketch26.addConstraint([
    Sketcher.Constraint("Vertical", 0),
    Sketcher.Constraint("Equal", 1, 2),
    Sketcher.Constraint("DistanceX", 0, 2, -1, 1, Q("114 mm")),
    Sketcher.Constraint("DistanceY", 0, 1, 0, 2, Q("38.109866 mm")),
    Sketcher.Constraint("DistanceY", -1, 1, 1, 2, Q("30.14845 mm")),
    Sketcher.Constraint("Distance", 1, Q("28.550993 mm")),
])
pocket19 = body.newObject("PartDesign::Pocket", "Pocket018")
pocket19.Profile = sketch26
pocket19.Type = "UpToFirst"
pocket19.Reversed = True

# Sketch on XY plane
sketch27 = body.newObject("Sketcher::SketchObject", "Sketch026")
sketch27.AttachmentSupport = (doc.getObject("XY_Plane"), [""])
sketch27.MapMode = "FlatFace"
sketch27.AttachmentOffset = App.Placement(App.Vector(0, 0, -4.071068), App.Rotation())
add_polygon(sketch27, [(-109.508466, 53.225397), (-66.988336, 53.225397), (-88.248401, 34.172114)])  # lines 0-2
sketch27.addConstraint([
    Sketcher.Constraint("Horizontal", 0),
    Sketcher.Constraint("Equal", 1, 2),
    Sketcher.Constraint("DistanceX", 0, 1, 0, 2, Q("42.52013 mm")),
    Sketcher.Constraint("DistanceX", 1, 2, -1, 1, Q("88.248401 mm")),
    Sketcher.Constraint("Distance", 1, Q("28.548519 mm")),
    Sketcher.Constraint("DistanceY", -1, 1, 0, 2, Q("53.225397 mm")),
])
pocket20 = body.newObject("PartDesign::Pocket", "Pocket019")
pocket20.Profile = sketch27
pocket20.Type = "UpToFirst"
pocket20.Reversed = True

doc.recompute()
